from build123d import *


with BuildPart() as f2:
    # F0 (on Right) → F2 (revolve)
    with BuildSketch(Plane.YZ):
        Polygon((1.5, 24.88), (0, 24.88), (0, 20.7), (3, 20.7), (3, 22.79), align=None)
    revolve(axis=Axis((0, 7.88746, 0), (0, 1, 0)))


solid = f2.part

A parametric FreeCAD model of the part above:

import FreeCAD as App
import Part
import Sketcher

V = App.Vector
Q = App.Units.Quantity

doc = App.newDocument("Part")
body = doc.addObject("PartDesign::Body", "Body")

# Sketch on YZ plane
sketch1 = body.newObject("Sketcher::SketchObject", "Sketch")
sketch1.AttachmentSupport = (doc.getObject("YZ_Plane"), [""])
sketch1.MapMode = "FlatFace"
sketch1.addGeometry(Part.LineSegment(V(1.5, 24.9, 0), V(0, 24.9, 0)), False)
sketch1.addGeometry(Part.LineSegment(V(0, 24.9, 0), V(0, 20.7, 0)), False)
sketch1.addGeometry(Part.LineSegment(V(0, 20.7, 0), V(3, 20.7, 0)), False)
sketch1.addGeometry(Part.LineSegment(V(3, 20.7, 0), V(3, 22.8, 0)), False)
sketch1.addGeometry(Part.LineSegment(V(3, 22.8, 0), V(1.5, 24.9, 0)), False)
sketch1.addConstraint(Sketcher.Constraint("Coincident", 0, 2, 1, 1))
sketch1.addConstraint(Sketcher.Constraint("Coincident", 1, 2, 2, 1))
sketch1.addConstraint(Sketcher.Constraint("Coincident", 2, 2, 3, 1))
sketch1.addConstraint(Sketcher.Constraint("Coincident", 3, 2, 4, 1))
sketch1.addConstraint(Sketcher.Constraint("Coincident", 4, 2, 0, 1))
sketch1.addConstraint(Sketcher.Constraint("Horizontal", 0))
sketch1.addConstraint(Sketcher.Constraint("Vertical", 1))
sketch1.addConstraint(Sketcher.Constraint("Horizontal", 2))
sketch1.addConstraint(Sketcher.Constraint("Vertical", 3))
sketch1.addConstraint(Sketcher.Constraint("PointOnObject", 0, 2, -2))
sketch1.addConstraint(Sketcher.Constraint("DistanceX", 2, 1, 2, 2, Q("3 mm")))
sketch1.addConstraint(Sketcher.Constraint("DistanceX", 0, 2, 0, 1, Q("1.5 mm")))
sketch1.addConstraint(Sketcher.Constraint("DistanceY", 1, 2, 1, 1, Q("4.18 mm")))
sketch1.addConstraint(Sketcher.Constraint("DistanceY", 3, 1, 3, 2, Q("2.09 mm")))
sketch1.addConstraint(Sketcher.Constraint("DistanceY", -1, 1, 1, 2, Q("20.7 mm")))
revolution = body.newObject("PartDesign::Revolution", "Revolution")
revolution.Profile = sketch1
revolution.ReferenceAxis = (sketch1, ["H_Axis"])
revolution.Angle = 360

doc.recompute()
